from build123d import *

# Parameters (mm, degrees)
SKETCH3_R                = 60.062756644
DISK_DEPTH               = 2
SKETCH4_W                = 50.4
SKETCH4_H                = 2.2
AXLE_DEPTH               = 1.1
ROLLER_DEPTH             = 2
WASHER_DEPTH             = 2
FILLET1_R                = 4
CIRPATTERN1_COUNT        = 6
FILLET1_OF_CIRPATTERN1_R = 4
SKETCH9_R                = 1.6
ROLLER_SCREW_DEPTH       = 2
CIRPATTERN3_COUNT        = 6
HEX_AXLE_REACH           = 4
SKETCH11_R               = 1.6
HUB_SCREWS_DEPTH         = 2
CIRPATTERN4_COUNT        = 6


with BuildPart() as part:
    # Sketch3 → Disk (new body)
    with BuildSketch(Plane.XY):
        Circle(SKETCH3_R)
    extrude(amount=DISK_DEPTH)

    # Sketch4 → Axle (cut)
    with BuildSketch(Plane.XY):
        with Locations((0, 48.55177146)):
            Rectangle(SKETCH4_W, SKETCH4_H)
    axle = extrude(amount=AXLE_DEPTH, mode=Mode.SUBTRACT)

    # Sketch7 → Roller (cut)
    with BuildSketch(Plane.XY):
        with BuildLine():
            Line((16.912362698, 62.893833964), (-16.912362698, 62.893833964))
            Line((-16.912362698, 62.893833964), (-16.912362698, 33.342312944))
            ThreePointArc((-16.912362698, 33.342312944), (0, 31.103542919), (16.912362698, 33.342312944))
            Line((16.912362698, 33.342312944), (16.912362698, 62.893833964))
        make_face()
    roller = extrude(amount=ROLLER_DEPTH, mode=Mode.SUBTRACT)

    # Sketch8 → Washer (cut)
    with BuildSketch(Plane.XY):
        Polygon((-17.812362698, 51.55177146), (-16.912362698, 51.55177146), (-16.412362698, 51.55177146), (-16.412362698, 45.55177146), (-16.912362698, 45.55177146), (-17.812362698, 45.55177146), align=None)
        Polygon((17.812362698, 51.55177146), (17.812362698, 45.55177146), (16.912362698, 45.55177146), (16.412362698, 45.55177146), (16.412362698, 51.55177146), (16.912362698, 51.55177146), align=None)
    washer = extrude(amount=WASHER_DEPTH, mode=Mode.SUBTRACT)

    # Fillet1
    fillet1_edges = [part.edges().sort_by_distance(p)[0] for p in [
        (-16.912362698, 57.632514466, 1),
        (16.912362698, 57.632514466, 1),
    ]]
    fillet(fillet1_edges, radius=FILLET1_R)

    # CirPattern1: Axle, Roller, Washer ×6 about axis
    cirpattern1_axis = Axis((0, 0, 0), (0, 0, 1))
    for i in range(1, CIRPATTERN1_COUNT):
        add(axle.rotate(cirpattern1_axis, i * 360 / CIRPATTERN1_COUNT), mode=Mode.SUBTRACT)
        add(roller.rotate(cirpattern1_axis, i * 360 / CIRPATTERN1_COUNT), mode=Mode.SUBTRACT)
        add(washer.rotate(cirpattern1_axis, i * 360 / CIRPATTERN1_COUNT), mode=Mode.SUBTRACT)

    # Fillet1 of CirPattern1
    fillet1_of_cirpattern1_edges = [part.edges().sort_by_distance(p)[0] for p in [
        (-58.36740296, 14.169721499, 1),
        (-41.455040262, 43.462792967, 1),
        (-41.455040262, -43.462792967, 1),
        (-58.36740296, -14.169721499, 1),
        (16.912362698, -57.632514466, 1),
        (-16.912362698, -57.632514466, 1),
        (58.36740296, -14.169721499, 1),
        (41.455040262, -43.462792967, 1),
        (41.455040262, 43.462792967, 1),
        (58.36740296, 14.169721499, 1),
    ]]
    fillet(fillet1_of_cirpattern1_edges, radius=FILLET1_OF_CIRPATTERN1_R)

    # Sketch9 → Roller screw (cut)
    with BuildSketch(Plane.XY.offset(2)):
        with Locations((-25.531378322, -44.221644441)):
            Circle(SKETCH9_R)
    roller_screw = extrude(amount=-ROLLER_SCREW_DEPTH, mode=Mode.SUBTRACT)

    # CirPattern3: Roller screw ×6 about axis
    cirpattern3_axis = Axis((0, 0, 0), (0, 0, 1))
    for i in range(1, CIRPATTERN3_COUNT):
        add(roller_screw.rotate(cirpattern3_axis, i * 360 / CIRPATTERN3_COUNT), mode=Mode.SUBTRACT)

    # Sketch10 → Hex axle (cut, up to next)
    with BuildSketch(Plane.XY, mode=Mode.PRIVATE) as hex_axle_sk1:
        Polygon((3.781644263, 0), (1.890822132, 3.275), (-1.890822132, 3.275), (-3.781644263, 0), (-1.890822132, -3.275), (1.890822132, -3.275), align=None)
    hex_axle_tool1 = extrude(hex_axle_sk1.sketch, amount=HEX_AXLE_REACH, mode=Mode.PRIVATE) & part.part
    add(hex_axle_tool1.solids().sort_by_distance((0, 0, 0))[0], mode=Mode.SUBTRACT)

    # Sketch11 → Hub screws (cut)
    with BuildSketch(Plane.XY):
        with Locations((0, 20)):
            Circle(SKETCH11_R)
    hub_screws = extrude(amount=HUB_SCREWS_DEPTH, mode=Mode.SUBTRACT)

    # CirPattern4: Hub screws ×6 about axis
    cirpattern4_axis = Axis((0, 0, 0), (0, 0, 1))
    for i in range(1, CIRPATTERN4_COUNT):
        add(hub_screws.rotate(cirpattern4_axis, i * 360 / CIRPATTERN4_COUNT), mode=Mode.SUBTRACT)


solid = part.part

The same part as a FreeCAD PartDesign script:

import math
import FreeCAD as App
import Part
import Sketcher

V = App.Vector
Q = App.Units.Quantity


def edges_at(feature, points):
    """Names of the edges that pass closest to the given points."""
    edges = feature.Shape.Edges
    near = lambda p: min(range(len(edges)), key=lambda i: edges[i].distToShape(Part.Vertex(*p))[0])
    return sorted({f"Edge{near(p) + 1}" for p in points})

doc = App.newDocument("Part")
body = doc.addObject("PartDesign::Body", "Body")

sketch1 = body.newObject("Sketcher::SketchObject", "Sketch")
sketch1.AttachmentSupport = (doc.getObject("XY_Plane"), [""])
sketch1.MapMode = "FlatFace"
sketch1.addGeometry(Part.Circle(V(0, 0, 0), V(0, 0, 1), 60), False)
sketch1.addConstraint(Sketcher.Constraint("Coincident", 0, 3, -1, 1))
sketch1.addConstraint(Sketcher.Constraint("Diameter", 0, Q("120.125513 mm")))
pad1 = body.newObject("PartDesign::Pad", "Pad")
pad1.Profile = sketch1
pad1.Length = 2

sketch2 = body.newObject("Sketcher::SketchObject", "Sketch001")
sketch2.AttachmentSupport = (doc.getObject("XY_Plane"), [""])
sketch2.MapMode = "FlatFace"
sketch2.addGeometry(Part.LineSegment(V(-25.2, 49.7, 0), V(-25.2, 47.5, 0)), False)
sketch2.addGeometry(Part.LineSegment(V(-25.2, 47.5, 0), V(25.2, 47.5, 0)), False)
sketch2.addGeometry(Part.LineSegment(V(25.2, 47.5, 0), V(25.2, 49.7, 0)), False)
sketch2.addGeometry(Part.LineSegment(V(25.2, 49.7, 0), V(-25.2, 49.7, 0)), False)
sketch2.addConstraint(Sketcher.Constraint("Coincident", 0, 2, 1, 1))
sketch2.addConstraint(Sketcher.Constraint("Coincident", 1, 2, 2, 1))
sketch2.addConstraint(Sketcher.Constraint("Coincident", 2, 2, 3, 1))
sketch2.addConstraint(Sketcher.Constraint("Coincident", 3, 2, 0, 1))
sketch2.addConstraint(Sketcher.Constraint("Vertical", 0))
sketch2.addConstraint(Sketcher.Constraint("Horizontal", 1))
sketch2.addConstraint(Sketcher.Constraint("Vertical", 2))
sketch2.addConstraint(Sketcher.Constraint("Horizontal", 3))
sketch2.addConstraint(Sketcher.Constraint("DistanceX", 1, 1, 1, 2, Q("50.4 mm")))
sketch2.addConstraint(Sketcher.Constraint("DistanceY", 0, 2, 0, 1, Q("2.2 mm")))
sketch2.addConstraint(Sketcher.Constraint("DistanceX", 0, 2, -1, 1, Q("25.2 mm")))
sketch2.addConstraint(Sketcher.Constraint("DistanceY", -1, 1, 0, 2, Q("47.451771 mm")))
pocket1 = body.newObject("PartDesign::Pocket", "Pocket")
pocket1.Profile = sketch2
pocket1.Length = 1.1
pocket1.Reversed = True

sketch3 = body.newObject("Sketcher::SketchObject", "Sketch002")
sketch3.AttachmentSupport = (doc.getObject("XY_Plane"), [""])
sketch3.MapMode = "FlatFace"
sketch3.addGeometry(Part.LineSegment(V(17, 63, 0), V(-17, 63, 0)), False)
sketch3.addGeometry(Part.LineSegment(V(-17, 63, 0), V(-17, 33, 0)), False)
sketch3.addGeometry(Part.ArcOfCircle(Part.Circle(V(0, 96, 0), V(0, 0, 1), 65), math.radians(-105), math.radians(-75)), False)
sketch3.addGeometry(Part.LineSegment(V(17, 33, 0), V(17, 63, 0)), False)
sketch3.addConstraint(Sketcher.Constraint("Coincident", 0, 2, 1, 1))
sketch3.addConstraint(Sketcher.Constraint("Coincident", 1, 2, 2, 1))
sketch3.addConstraint(Sketcher.Constraint("Coincident", 2, 2, 3, 1))
sketch3.addConstraint(Sketcher.Constraint("Coincident", 3, 2, 0, 1))
sketch3.addConstraint(Sketcher.Constraint("Horizontal", 0))
sketch3.addConstraint(Sketcher.Constraint("Vertical", 1))
sketch3.addConstraint(Sketcher.Constraint("Vertical", 3))
sketch3.addConstraint(Sketcher.Constraint("Symmetric", 1, 2, 2, 2, -2))
sketch3.addConstraint(Sketcher.Constraint("Radius", 2, Q("65 mm")))
sketch3.addConstraint(Sketcher.Constraint("DistanceY", 1, 2, 1, 1, Q("29.551521 mm")))
sketch3.addConstraint(Sketcher.Constraint("DistanceX", 0, 2, 0, 1, Q("33.824725 mm")))
sketch3.addConstraint(Sketcher.Constraint("DistanceY", -1, 1, 2, 3, Q("96.103543 mm")))
pocket2 = body.newObject("PartDesign::Pocket", "Pocket001")
pocket2.Profile = sketch3
pocket2.Length = 2
pocket2.Reversed = True

sketch4 = body.newObject("Sketcher::SketchObject", "Sketch003")
sketch4.AttachmentSupport = (doc.getObject("XY_Plane"), [""])
sketch4.MapMode = "FlatFace"
sketch4.addGeometry(Part.LineSegment(V(-16.4, 51.6, 0), V(-17.8, 51.6, 0)), False)
sketch4.addGeometry(Part.LineSegment(V(-17.8, 51.6, 0), V(-17.8, 45.6, 0)), False)
sketch4.addGeometry(Part.LineSegment(V(-17.8, 45.6, 0), V(-16.4, 45.6, 0)), False)
sketch4.addGeometry(Part.LineSegment(V(-16.4, 45.6, 0), V(-16.4, 51.6, 0)), False)
sketch4.addGeometry(Part.LineSegment(V(17.8, 45.6, 0), V(17.8, 51.6, 0)), False)
sketch4.addGeometry(Part.LineSegment(V(17.8, 51.6, 0), V(16.4, 51.6, 0)), False)
sketch4.addGeometry(Part.LineSegment(V(16.4, 51.6, 0), V(16.4, 45.6, 0)), False)
sketch4.addGeometry(Part.LineSegment(V(16.4, 45.6, 0), V(17.8, 45.6, 0)), False)
sketch4.addConstraint(Sketcher.Constraint("Coincident", 0, 2, 1, 1))
sketch4.addConstraint(Sketcher.Constraint("Coincident", 1, 2, 2, 1))
sketch4.addConstraint(Sketcher.Constraint("Coincident", 2, 2, 3, 1))
sketch4.addConstraint(Sketcher.Constraint("Coincident", 3, 2, 0, 1))
sketch4.addConstraint(Sketcher.Constraint("Coincident", 4, 2, 5, 1))
sketch4.addConstraint(Sketcher.Constraint("Coincident", 5, 2, 6, 1))
sketch4.addConstraint(Sketcher.Constraint("Coincident", 6, 2, 7, 1))
sketch4.addConstraint(Sketcher.Constraint("Coincident", 7, 2, 4, 1))
sketch4.addConstraint(Sketcher.Constraint("Horizontal", 0))
sketch4.addConstraint(Sketcher.Constraint("Vertical", 1))
sketch4.addConstraint(Sketcher.Constraint("Horizontal", 2))
sketch4.addConstraint(Sketcher.Constraint("Vertical", 3))
sketch4.addConstraint(Sketcher.Constraint("Vertical", 4))
sketch4.addConstraint(Sketcher.Constraint("Horizontal", 5))
sketch4.addConstraint(Sketcher.Constraint("Vertical", 6))
sketch4.addConstraint(Sketcher.Constraint("Horizontal", 7))
sketch4.addConstraint(Sketcher.Constraint("Symmetric", 0, 2, 4, 2, -2))
sketch4.addConstraint(Sketcher.Constraint("Symmetric", 2, 2, 6, 2, -2))
sketch4.addConstraint(Sketcher.Constraint("DistanceY", 1, 2, 1, 1, Q("6 mm")))
sketch4.addConstraint(Sketcher.Constraint("DistanceX", 0, 2, 0, 1, Q("1.4 mm")))
sketch4.addConstraint(Sketcher.Constraint("DistanceY", -1, 1, 0, 2, Q("51.551771 mm")))
sketch4.addConstraint(Sketcher.Constraint("DistanceX", 0, 2, -1, 1, Q("17.812363 mm")))
pocket3 = body.newObject("PartDesign::Pocket", "Pocket002")
pocket3.Profile = sketch4
pocket3.Length = 2
pocket3.Reversed = True
doc.recompute()

fillet = body.newObject("PartDesign::Fillet", "Fillet")
fillet.Base = (pocket3, edges_at(pocket3, [(-16.912, 57.633, 1), (16.912, 57.633, 1)]))
fillet.Radius = 4
doc.recompute()

polarpattern = body.newObject("PartDesign::PolarPattern", "PolarPattern")
polarpattern.Originals = [pocket1, pocket2, pocket3]
polarpattern.Axis = (doc.getObject("Z_Axis"), [""])
polarpattern.Angle = 360
polarpattern.Occurrences = 6
body.Tip = polarpattern
doc.recompute()

fillet2 = body.newObject("PartDesign::Fillet", "Fillet001")
fillet2.Base = (polarpattern, edges_at(polarpattern, [
    (-58.367, 14.17, 1),
    (-41.455, 43.463, 1),
    (-41.455, -43.463, 1),
    (-58.367, -14.17, 1),
    (16.912, -57.633, 1),
    (-16.912, -57.633, 1),
    (58.367, -14.17, 1),
    (41.455, -43.463, 1),
    (41.455, 43.463, 1),
    (58.367, 14.17, 1),
]))
fillet2.Radius = 4

sketch5 = body.newObject("Sketcher::SketchObject", "Sketch004")
sketch5.AttachmentSupport = (doc.getObject("XY_Plane"), [""])
sketch5.MapMode = "FlatFace"
sketch5.AttachmentOffset = App.Placement(V(0, 0, 2), App.Rotation())
sketch5.addGeometry(Part.Circle(V(-25.5, -44.2, 0), V(0, 0, 1), 1.6), False)
sketch5.addConstraint(Sketcher.Constraint("Diameter", 0, Q("3.2 mm")))
sketch5.addConstraint(Sketcher.Constraint("DistanceX", 0, 3, -1, 1, Q("25.531378 mm")))
sketch5.addConstraint(Sketcher.Constraint("DistanceY", 0, 3, -1, 1, Q("44.221644 mm")))
pocket4 = body.newObject("PartDesign::Pocket", "Pocket003")
pocket4.Profile = sketch5
pocket4.Length = 2
doc.recompute()

polarpattern2 = body.newObject("PartDesign::PolarPattern", "PolarPattern001")
polarpattern2.Originals = [pocket4]
polarpattern2.Axis = (doc.getObject("Z_Axis"), [""])
polarpattern2.Angle = 360
polarpattern2.Occurrences = 6
body.Tip = polarpattern2

sketch6 = body.newObject("Sketcher::SketchObject", "Sketch005")
sketch6.AttachmentSupport = (doc.getObject("XY_Plane"), [""])
sketch6.MapMode = "FlatFace"
sketch6.addGeometry(Part.LineSegment(V(3.8, 0, 0), V(1.9, 3.3, 0)), False)
sketch6.addGeometry(Part.LineSegment(V(1.9, 3.3, 0), V(-1.9, 3.3, 0)), False)
sketch6.addGeometry(Part.LineSegment(V(-1.9, 3.3, 0), V(-3.8, 0, 0)), False)
sketch6.addGeometry(Part.LineSegment(V(-3.8, 0, 0), V(-1.9, -3.3, 0)), False)
sketch6.addGeometry(Part.LineSegment(V(-1.9, -3.3, 0), V(1.9, -3.3, 0)), False)
sketch6.addGeometry(Part.LineSegment(V(1.9, -3.3, 0), V(3.8, 0, 0)), False)
sketch6.addConstraint(Sketcher.Constraint("Coincident", 0, 2, 1, 1))
sketch6.addConstraint(Sketcher.Constraint("Coincident", 1, 2, 2, 1))
sketch6.addConstraint(Sketcher.Constraint("Coincident", 2, 2, 3, 1))
sketch6.addConstraint(Sketcher.Constraint("Coincident", 3, 2, 4, 1))
sketch6.addConstraint(Sketcher.Constraint("Coincident", 4, 2, 5, 1))
sketch6.addConstraint(Sketcher.Constraint("Coincident", 5, 2, 0, 1))
sketch6.addConstraint(Sketcher.Constraint("Horizontal", 1))
sketch6.addConstraint(Sketcher.Constraint("Horizontal", 4))
sketch6.addConstraint(Sketcher.Constraint("Symmetric", 0, 2, 3, 2, -1, 1))
sketch6.addConstraint(Sketcher.Constraint("Symmetric", 2, 2, 5, 2, -1, 1))
sketch6.addConstraint(Sketcher.Constraint("PointOnObject", 2, 2, -1))
sketch6.addConstraint(Sketcher.Constraint("Parallel", 2, 5))
sketch6.addConstraint(Sketcher.Constraint("Vertical", 1, 2, 3, 2))
sketch6.addConstraint(Sketcher.Constraint("Angle", 0, Q("120 deg")))
sketch6.addConstraint(Sketcher.Constraint("DistanceY", 3, 2, 1, 2, Q("6.55 mm")))
sketch6.addConstraint(Sketcher.Constraint("DistanceX", 1, 2, 1, 1, Q("3.781644 mm")))
pocket5 = body.newObject("PartDesign::Pocket", "Pocket004")
pocket5.Profile = sketch6
pocket5.Type = "UpToFirst"
pocket5.Reversed = True

sketch7 = body.newObject("Sketcher::SketchObject", "Sketch006")
sketch7.AttachmentSupport = (doc.getObject("XY_Plane"), [""])
sketch7.MapMode = "FlatFace"
sketch7.addGeometry(Part.Circle(V(0, 20, 0), V(0, 0, 1), 1.6), False)
sketch7.addConstraint(Sketcher.Constraint("PointOnObject", 0, 3, -2))
sketch7.addConstraint(Sketcher.Constraint("Diameter", 0, Q("3.2 mm")))
sketch7.addConstraint(Sketcher.Constraint("DistanceY", -1, 1, 0, 3, Q("20 mm")))
pocket6 = body.newObject("PartDesign::Pocket", "Pocket005")
pocket6.Profile = sketch7
pocket6.Length = 2
pocket6.Reversed = True
doc.recompute()

polarpattern3 = body.newObject("PartDesign::PolarPattern", "PolarPattern002")
polarpattern3.Originals = [pocket6]
polarpattern3.Axis = (doc.getObject("Z_Axis"), [""])
polarpattern3.Angle = 360
polarpattern3.Occurrences = 6
body.Tip = polarpattern3

doc.recompute()
